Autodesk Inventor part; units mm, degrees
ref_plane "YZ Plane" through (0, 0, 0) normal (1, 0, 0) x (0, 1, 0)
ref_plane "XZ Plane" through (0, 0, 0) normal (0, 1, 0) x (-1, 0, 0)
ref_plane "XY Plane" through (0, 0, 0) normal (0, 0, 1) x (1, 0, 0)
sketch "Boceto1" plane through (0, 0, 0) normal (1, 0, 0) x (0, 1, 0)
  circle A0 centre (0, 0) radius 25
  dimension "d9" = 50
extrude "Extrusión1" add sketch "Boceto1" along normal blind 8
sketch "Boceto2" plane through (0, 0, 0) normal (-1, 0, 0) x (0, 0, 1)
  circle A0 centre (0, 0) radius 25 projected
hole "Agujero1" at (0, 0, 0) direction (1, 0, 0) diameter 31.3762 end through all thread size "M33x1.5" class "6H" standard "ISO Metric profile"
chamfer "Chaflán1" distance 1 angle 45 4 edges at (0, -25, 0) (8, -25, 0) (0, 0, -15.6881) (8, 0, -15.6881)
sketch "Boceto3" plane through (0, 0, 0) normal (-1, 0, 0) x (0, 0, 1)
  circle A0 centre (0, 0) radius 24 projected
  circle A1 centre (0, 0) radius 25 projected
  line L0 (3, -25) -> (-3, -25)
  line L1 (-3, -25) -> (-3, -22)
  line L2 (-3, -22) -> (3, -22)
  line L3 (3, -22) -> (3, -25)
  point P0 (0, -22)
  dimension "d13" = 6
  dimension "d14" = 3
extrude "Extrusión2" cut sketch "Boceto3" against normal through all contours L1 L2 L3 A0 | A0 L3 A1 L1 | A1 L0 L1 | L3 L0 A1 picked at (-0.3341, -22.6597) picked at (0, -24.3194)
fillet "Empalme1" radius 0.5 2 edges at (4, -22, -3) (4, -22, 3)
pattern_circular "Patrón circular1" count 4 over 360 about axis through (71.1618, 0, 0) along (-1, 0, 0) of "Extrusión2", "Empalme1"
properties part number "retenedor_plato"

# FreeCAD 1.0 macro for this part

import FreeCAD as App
import Part
import Sketcher

V = App.Vector


def edges_at(feature, points):
    """Names of the edges that pass closest to the given points."""
    edges = feature.Shape.Edges
    near = lambda p: min(range(len(edges)), key=lambda i: edges[i].distToShape(Part.Vertex(*p))[0])
    return sorted({f"Edge{near(p) + 1}" for p in points})


def add_polygon(sketch, points):
    """Adds a closed chain of lines whose ends are joined by coincident constraints."""
    first, n = sketch.GeometryCount, len(points)
    for a, b in zip(points, points[1:] + points[:1]):
        sketch.addGeometry(Part.LineSegment(App.Vector(*a, 0), App.Vector(*b, 0)), False)
    for i in range(n):
        sketch.addConstraint(Sketcher.Constraint("Coincident", first + i, 2, first + (i + 1) % n, 1))

doc = App.newDocument("Part")
body = doc.addObject("PartDesign::Body", "Body")

# Sketch on YZ plane
sketch1 = doc.addObject("Sketcher::SketchObject", "Sketch")
body.addObject(sketch1)
sketch1.AttachmentSupport = (doc.YZ_Plane, [""])
sketch1.MapMode = "FlatFace"
sketch1.addGeometry(Part.Circle(V(0, 0, 0), V(0, 0, 1), 25), False)
sketch1.addConstraint([
    Sketcher.Constraint("Coincident", 0, 3, -1, 1),
    Sketcher.Constraint("Diameter", 0, 50.0),
])
pad1 = doc.addObject("PartDesign::Pad", "Pad")
body.addObject(pad1)
pad1.Profile = sketch1
pad1.Length = 8

# Sketch on YZ plane
sketch2 = doc.addObject("Sketcher::SketchObject", "Sketch001")
body.addObject(sketch2)
sketch2.AttachmentSupport = (doc.YZ_Plane, [""])
sketch2.MapMode = "FlatFace"
sketch2.addGeometry(Part.Circle(V(0, 0, 0), V(0, 0, 1), 16), False)
sketch2.addConstraint([
    Sketcher.Constraint("Coincident", 0, 3, -1, 1),
    Sketcher.Constraint("Diameter", 0, 31.3762),
])
doc.recompute()
hole = doc.addObject("PartDesign::Hole", "Hole")
body.addObject(hole)
hole.Profile = sketch2
hole.ThreadType = "None"
hole.Diameter = 31.3762
hole.DepthType = "ThroughAll"
hole.Reversed = True
doc.recompute()

chamfer = doc.addObject("PartDesign::Chamfer", "Chamfer")
body.addObject(chamfer)
chamfer.Base = (hole, edges_at(hole, [
    (0, -25, 0),
    (8, -25, 0),
    (0, 0, -15.688),
    (8, 0, -15.688),
]))
chamfer.Size = 1

# Sketch on YZ plane
sketch3 = doc.addObject("Sketcher::SketchObject", "Sketch002")
body.addObject(sketch3)
sketch3.AttachmentSupport = (doc.YZ_Plane, [""])
sketch3.MapMode = "FlatFace"
add_polygon(sketch3, [(-22, -3), (-25, -3), (-25, 3), (-22, 3)])  # lines 0-3
sketch3.addConstraint([
    Sketcher.Constraint("Horizontal", 0),
    Sketcher.Constraint("Vertical", 1),
    Sketcher.Constraint("Horizontal", 2),
    Sketcher.Constraint("Vertical", 3),
    Sketcher.Constraint("DistanceX", 0, 2, 0, 1, 3.0),
    Sketcher.Constraint("DistanceY", 1, 1, 1, 2, 6.0),
    Sketcher.Constraint("DistanceY", 0, 2, -1, 1, 3.0),
    Sketcher.Constraint("DistanceX", 0, 2, -1, 1, 25.0),
])
pocket1 = doc.addObject("PartDesign::Pocket", "Pocket")
body.addObject(pocket1)
pocket1.Profile = sketch3
pocket1.Type = "ThroughAll"
pocket1.Reversed = True
doc.recompute()

fillet = doc.addObject("PartDesign::Fillet", "Fillet")
body.addObject(fillet)
fillet.Base = (pocket1, edges_at(pocket1, [(4, -22, -3), (4, -22, 3)]))
fillet.Radius = 0.5
doc.recompute()

polarpattern = doc.addObject("PartDesign::PolarPattern", "PolarPattern")
body.addObject(polarpattern)
polarpattern.Originals = [pocket1, fillet]
polarpattern.Axis = (doc.X_Axis, [""])
polarpattern.Angle = 360
polarpattern.Occurrences = 4
body.Tip = polarpattern

doc.recompute()
